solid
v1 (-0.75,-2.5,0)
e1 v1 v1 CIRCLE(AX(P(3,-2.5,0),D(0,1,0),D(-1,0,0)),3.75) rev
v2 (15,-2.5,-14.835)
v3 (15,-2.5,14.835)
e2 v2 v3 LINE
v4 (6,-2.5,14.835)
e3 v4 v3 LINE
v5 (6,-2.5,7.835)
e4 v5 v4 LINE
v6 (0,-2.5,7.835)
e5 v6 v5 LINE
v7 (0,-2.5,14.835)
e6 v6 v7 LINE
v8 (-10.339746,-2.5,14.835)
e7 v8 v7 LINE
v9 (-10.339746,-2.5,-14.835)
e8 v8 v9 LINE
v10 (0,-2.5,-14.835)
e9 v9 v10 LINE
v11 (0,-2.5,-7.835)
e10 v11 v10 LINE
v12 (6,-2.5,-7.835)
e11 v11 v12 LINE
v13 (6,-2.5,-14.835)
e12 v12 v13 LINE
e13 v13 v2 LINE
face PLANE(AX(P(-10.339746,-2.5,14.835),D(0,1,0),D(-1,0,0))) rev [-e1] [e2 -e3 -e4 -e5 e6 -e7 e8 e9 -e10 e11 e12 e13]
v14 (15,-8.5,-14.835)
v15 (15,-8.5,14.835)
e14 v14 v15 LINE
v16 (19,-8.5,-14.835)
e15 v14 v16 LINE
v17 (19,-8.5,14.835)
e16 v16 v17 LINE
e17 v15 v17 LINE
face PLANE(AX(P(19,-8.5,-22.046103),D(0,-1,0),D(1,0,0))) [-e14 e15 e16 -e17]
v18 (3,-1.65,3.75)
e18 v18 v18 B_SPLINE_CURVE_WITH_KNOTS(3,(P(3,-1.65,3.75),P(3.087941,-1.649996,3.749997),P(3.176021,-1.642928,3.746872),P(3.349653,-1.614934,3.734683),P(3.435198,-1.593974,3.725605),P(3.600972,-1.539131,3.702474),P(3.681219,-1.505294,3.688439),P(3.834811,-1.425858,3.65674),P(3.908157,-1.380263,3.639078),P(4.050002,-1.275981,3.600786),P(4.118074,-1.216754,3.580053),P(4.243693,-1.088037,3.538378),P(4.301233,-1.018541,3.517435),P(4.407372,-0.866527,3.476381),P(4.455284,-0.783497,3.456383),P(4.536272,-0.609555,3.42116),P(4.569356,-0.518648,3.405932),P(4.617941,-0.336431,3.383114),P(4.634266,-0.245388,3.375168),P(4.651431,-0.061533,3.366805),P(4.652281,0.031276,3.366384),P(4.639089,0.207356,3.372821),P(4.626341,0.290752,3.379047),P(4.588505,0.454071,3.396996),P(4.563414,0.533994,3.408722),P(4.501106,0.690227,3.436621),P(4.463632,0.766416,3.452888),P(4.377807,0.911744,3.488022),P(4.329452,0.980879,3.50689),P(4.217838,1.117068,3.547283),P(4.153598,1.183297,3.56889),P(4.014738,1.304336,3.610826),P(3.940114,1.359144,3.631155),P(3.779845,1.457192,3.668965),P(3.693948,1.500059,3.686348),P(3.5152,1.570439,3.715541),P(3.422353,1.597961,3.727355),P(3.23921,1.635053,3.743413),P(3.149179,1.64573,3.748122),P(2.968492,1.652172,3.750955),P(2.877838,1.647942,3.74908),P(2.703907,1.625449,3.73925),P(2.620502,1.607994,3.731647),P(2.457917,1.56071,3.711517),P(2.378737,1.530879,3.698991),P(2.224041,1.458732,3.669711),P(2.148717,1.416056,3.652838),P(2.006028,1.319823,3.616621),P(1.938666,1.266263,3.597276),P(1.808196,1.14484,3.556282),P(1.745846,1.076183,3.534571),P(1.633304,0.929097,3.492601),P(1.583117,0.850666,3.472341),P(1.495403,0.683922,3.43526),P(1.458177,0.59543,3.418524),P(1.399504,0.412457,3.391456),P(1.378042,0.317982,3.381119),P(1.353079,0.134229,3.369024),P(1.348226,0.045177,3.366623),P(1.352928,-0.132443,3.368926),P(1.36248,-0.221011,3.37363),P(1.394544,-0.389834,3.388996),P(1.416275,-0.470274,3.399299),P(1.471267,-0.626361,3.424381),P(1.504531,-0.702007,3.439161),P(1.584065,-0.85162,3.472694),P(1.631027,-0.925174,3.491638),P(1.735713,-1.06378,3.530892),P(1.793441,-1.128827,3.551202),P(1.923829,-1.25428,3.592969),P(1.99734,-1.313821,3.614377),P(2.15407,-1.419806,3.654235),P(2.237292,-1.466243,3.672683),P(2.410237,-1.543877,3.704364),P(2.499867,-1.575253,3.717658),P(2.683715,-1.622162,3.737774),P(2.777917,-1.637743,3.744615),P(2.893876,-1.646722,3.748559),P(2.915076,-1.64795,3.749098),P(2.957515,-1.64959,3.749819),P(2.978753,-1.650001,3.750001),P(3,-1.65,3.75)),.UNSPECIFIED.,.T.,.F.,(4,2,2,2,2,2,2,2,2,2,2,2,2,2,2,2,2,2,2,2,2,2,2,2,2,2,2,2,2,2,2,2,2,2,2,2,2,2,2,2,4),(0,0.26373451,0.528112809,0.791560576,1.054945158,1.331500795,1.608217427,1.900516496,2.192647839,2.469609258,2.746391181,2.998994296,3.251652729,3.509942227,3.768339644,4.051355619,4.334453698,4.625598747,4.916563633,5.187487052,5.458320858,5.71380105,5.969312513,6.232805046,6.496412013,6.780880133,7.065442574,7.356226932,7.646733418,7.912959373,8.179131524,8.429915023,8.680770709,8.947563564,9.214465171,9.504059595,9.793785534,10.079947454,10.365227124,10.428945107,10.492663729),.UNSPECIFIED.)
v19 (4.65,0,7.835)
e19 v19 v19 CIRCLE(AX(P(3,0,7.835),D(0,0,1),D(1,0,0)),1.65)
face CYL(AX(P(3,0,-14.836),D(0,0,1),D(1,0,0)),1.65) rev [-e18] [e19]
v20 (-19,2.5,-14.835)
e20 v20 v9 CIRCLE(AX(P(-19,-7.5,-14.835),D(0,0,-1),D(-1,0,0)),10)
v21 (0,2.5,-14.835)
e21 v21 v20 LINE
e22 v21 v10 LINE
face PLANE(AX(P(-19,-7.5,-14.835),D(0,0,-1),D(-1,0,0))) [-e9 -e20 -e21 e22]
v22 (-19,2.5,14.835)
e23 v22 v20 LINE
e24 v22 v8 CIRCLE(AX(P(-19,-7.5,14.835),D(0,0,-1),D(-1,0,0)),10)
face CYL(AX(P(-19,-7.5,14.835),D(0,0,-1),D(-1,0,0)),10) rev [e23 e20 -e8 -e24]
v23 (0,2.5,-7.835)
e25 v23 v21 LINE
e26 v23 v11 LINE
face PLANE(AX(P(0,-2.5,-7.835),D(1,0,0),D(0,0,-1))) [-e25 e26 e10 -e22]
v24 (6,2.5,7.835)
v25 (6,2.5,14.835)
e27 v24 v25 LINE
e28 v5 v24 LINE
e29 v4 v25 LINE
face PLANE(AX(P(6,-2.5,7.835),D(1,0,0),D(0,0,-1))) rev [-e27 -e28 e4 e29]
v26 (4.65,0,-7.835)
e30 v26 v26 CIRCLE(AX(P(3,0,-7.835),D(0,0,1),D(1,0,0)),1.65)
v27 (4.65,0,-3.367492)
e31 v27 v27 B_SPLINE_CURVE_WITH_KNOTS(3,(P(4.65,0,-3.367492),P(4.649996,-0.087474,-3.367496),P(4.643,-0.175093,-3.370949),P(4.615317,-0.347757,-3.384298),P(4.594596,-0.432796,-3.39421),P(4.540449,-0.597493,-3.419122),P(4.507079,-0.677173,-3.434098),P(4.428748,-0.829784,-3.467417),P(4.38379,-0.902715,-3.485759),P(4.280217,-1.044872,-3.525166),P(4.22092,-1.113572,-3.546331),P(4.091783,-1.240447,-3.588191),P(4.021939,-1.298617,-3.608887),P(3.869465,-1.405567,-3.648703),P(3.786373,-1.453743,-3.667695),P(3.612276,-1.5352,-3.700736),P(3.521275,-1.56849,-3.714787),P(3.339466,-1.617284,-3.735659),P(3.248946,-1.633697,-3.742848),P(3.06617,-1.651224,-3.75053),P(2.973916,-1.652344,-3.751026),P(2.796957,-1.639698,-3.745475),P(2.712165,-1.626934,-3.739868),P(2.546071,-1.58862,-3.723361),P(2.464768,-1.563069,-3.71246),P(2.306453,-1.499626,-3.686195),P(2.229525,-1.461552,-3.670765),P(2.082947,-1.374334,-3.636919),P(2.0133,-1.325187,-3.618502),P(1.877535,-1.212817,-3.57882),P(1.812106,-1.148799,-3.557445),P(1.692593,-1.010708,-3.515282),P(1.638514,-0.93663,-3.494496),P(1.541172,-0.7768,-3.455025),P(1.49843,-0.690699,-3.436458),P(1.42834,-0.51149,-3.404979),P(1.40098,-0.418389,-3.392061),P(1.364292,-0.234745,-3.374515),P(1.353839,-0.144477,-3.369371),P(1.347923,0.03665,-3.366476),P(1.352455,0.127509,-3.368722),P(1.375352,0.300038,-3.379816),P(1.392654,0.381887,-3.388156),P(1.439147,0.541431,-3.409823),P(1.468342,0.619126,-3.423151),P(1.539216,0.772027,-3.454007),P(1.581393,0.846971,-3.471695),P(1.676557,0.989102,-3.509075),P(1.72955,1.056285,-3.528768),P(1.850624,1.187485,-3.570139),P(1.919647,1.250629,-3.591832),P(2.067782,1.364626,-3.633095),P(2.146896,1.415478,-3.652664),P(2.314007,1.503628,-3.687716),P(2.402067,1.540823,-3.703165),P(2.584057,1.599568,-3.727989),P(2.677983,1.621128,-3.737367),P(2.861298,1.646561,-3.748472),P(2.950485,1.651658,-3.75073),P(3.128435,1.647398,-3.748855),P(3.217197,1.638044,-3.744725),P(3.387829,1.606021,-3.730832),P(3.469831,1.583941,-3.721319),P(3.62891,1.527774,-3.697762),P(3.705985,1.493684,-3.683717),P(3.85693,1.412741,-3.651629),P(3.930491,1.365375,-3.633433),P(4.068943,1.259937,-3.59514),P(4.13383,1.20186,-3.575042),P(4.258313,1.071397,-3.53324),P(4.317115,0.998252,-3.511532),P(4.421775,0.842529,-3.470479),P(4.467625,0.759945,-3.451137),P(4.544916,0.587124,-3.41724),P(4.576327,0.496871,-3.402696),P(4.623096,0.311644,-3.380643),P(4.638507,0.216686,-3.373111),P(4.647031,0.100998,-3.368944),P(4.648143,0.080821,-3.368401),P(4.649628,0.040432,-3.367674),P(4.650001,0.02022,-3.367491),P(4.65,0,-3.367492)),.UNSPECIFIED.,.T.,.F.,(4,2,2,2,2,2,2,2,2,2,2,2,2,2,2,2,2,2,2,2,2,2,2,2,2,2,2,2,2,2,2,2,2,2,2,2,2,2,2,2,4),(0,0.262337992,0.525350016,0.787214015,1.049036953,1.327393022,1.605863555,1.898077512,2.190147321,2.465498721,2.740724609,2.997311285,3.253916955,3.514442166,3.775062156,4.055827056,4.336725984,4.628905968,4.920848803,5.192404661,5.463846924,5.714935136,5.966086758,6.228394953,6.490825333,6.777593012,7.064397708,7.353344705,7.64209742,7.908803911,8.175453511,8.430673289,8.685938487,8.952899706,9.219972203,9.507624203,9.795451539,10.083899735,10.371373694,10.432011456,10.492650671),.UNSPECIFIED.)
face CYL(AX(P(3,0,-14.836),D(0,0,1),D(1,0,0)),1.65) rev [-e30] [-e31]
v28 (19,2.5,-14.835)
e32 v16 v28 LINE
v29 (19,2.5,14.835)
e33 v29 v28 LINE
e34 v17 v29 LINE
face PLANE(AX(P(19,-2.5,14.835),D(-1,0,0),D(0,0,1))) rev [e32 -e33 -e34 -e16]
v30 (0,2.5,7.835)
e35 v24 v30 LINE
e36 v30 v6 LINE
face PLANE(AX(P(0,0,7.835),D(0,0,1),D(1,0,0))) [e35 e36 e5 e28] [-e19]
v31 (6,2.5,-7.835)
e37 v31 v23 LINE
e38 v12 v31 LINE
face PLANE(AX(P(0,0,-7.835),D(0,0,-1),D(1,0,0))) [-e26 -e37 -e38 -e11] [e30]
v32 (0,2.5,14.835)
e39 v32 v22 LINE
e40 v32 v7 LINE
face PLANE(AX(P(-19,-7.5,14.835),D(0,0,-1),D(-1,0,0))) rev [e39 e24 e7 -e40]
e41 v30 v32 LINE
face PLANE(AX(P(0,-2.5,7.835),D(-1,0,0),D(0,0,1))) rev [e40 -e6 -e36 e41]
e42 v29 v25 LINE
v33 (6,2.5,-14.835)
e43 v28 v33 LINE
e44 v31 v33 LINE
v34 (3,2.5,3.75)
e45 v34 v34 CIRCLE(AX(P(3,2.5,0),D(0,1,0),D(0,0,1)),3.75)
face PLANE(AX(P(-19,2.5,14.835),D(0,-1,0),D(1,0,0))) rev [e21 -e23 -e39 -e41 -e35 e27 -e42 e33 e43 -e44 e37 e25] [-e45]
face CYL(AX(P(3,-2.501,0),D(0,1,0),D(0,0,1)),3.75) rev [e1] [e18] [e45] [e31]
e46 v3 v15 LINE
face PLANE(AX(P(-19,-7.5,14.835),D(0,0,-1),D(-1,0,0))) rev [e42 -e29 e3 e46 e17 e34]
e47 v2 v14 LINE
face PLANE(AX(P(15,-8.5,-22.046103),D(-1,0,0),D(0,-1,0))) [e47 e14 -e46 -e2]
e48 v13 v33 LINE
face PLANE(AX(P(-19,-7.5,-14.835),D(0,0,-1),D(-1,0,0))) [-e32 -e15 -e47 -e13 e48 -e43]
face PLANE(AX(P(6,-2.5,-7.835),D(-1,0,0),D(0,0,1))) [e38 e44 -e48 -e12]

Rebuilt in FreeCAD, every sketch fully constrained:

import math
import FreeCAD as App
import Part
import Sketcher


def add_polygon(sketch, points):
    """Adds a closed chain of lines whose ends are joined by coincident constraints."""
    first, n = sketch.GeometryCount, len(points)
    for a, b in zip(points, points[1:] + points[:1]):
        sketch.addGeometry(Part.LineSegment(App.Vector(*a, 0), App.Vector(*b, 0)), False)
    for i in range(n):
        sketch.addConstraint(Sketcher.Constraint("Coincident", first + i, 2, first + (i + 1) % n, 1))

doc = App.newDocument("Part")
body = doc.addObject("PartDesign::Body", "Body")

sketch1 = body.newObject("Sketcher::SketchObject", "Sketch")
sketch1.AttachmentSupport = (doc.getObject("XY_Plane"), [""])
sketch1.MapMode = "FlatFace"
sketch1.addGeometry(Part.LineSegment(App.Vector(-10.339746, -2.5, 0), App.Vector(19, -2.5, 0)), False)
sketch1.addGeometry(Part.LineSegment(App.Vector(19, -2.5, 0), App.Vector(19, 2.5, 0)), False)
sketch1.addGeometry(Part.LineSegment(App.Vector(19, 2.5, 0), App.Vector(-19, 2.5, 0)), False)
sketch1.addGeometry(Part.ArcOfCircle(Part.Circle(App.Vector(-19, -7.5, 0), App.Vector(0, 0, 1), 10), math.radians(30), math.radians(90)), False)
sketch1.addConstraint(Sketcher.Constraint("Coincident", 0, 2, 1, 1))
sketch1.addConstraint(Sketcher.Constraint("Coincident", 1, 2, 2, 1))
sketch1.addConstraint(Sketcher.Constraint("Tangent", 2, 2, 3, 2))
sketch1.addConstraint(Sketcher.Constraint("Coincident", 3, 1, 0, 1))
sketch1.addConstraint(Sketcher.Constraint("Horizontal", 0))
sketch1.addConstraint(Sketcher.Constraint("Vertical", 1))
sketch1.addConstraint(Sketcher.Constraint("Horizontal", 2))
sketch1.addConstraint(Sketcher.Constraint("Symmetric", 0, 2, 2, 2, -1, 1))
sketch1.addConstraint(Sketcher.Constraint("Radius", 3, 10.0))
sketch1.addConstraint(Sketcher.Constraint("DistanceX", 2, 2, 2, 1, 38.0))
sketch1.addConstraint(Sketcher.Constraint("DistanceY", 1, 1, 1, 2, 5.0))
pad1 = body.newObject("PartDesign::Pad", "Pad")
pad1.Profile = sketch1
pad1.Length = 29.67
pad1.Midplane = True

sketch2 = body.newObject("Sketcher::SketchObject", "Sketch001")
sketch2.AttachmentSupport = (doc.getObject("XY_Plane"), [""])
sketch2.MapMode = "FlatFace"
sketch2.AttachmentOffset = App.Placement(App.Vector(0, 0, 14.835), App.Rotation())
sketch2.addGeometry(Part.Circle(App.Vector(3, 0, 0), App.Vector(0, 0, 1), 1.65), False)
sketch2.addConstraint(Sketcher.Constraint("PointOnObject", 0, 3, -1))
sketch2.addConstraint(Sketcher.Constraint("Diameter", 0, 3.3))
sketch2.addConstraint(Sketcher.Constraint("DistanceX", -1, 1, 0, 3, 3.0))
pocket1 = body.newObject("PartDesign::Pocket", "Pocket")
pocket1.Profile = sketch2
pocket1.Type = "UpToFirst"

sketch3 = body.newObject("Sketcher::SketchObject", "Sketch002")
sketch3.AttachmentSupport = (doc.getObject("XY_Plane"), [""])
sketch3.MapMode = "FlatFace"
sketch3.AttachmentOffset = App.Placement(App.Vector(0, 0, 14.835), App.Rotation())
add_polygon(sketch3, [(0, 2.5), (0, -2.5), (6, -2.5), (6, 2.5)])
sketch3.addGeometry(Part.Circle(App.Vector(3, 0, 0), App.Vector(0, 0, 1), 1.65), False)
sketch3.addConstraint(Sketcher.Constraint("Vertical", 0))
sketch3.addConstraint(Sketcher.Constraint("Horizontal", 1))
sketch3.addConstraint(Sketcher.Constraint("Vertical", 2))
sketch3.addConstraint(Sketcher.Constraint("Horizontal", 3))
sketch3.addConstraint(Sketcher.Constraint("Symmetric", 0, 2, 3, 2, -1, 1))
sketch3.addConstraint(Sketcher.Constraint("PointOnObject", 4, 3, -1))
sketch3.addConstraint(Sketcher.Constraint("Diameter", 4, 3.3))
sketch3.addConstraint(Sketcher.Constraint("DistanceX", 1, 1, 1, 2, 6.0))
sketch3.addConstraint(Sketcher.Constraint("DistanceY", 0, 2, 0, 1, 5.0))
sketch3.addConstraint(Sketcher.Constraint("DistanceX", -1, 1, 4, 3, 3.0))
pocket2 = body.newObject("PartDesign::Pocket", "Pocket001")
pocket2.Profile = sketch3
pocket2.Length = 7
doc.recompute()

mirrored = body.newObject("PartDesign::Mirrored", "Mirrored")
mirrored.Originals = [pocket2]
mirrored.MirrorPlane = (doc.getObject("XY_Plane"), [""])
body.Tip = mirrored

sketch4 = body.newObject("Sketcher::SketchObject", "Sketch003")
sketch4.AttachmentSupport = (doc.getObject("XZ_Plane"), [""])
sketch4.MapMode = "FlatFace"
sketch4.AttachmentOffset = App.Placement(App.Vector(0, 0, -2.5), App.Rotation())
sketch4.addGeometry(Part.Circle(App.Vector(3, 0, 0), App.Vector(0, 0, 1), 3.75), False)
sketch4.addConstraint(Sketcher.Constraint("PointOnObject", 0, 3, -1))
sketch4.addConstraint(Sketcher.Constraint("Diameter", 0, 7.5))
sketch4.addConstraint(Sketcher.Constraint("DistanceX", -1, 1, 0, 3, 3.0))
pocket3 = body.newObject("PartDesign::Pocket", "Pocket002")
pocket3.Profile = sketch4
pocket3.Length = 5
pocket3.Reversed = True

sketch5 = body.newObject("Sketcher::SketchObject", "Sketch004")
sketch5.AttachmentSupport = (doc.getObject("XY_Plane"), [""])
sketch5.MapMode = "FlatFace"
sketch5.AttachmentOffset = App.Placement(App.Vector(0, 0, 14.835), App.Rotation())
add_polygon(sketch5, [(15, -2.5), (15, -8.5), (19, -8.5), (19, -2.5)])
sketch5.addConstraint(Sketcher.Constraint("Vertical", 0))
sketch5.addConstraint(Sketcher.Constraint("Horizontal", 1))
sketch5.addConstraint(Sketcher.Constraint("Vertical", 2))
sketch5.addConstraint(Sketcher.Constraint("Horizontal", 3))
sketch5.addConstraint(Sketcher.Constraint("DistanceX", 1, 1, 1, 2, 4.0))
sketch5.addConstraint(Sketcher.Constraint("DistanceY", 0, 2, 0, 1, 6.0))
sketch5.addConstraint(Sketcher.Constraint("DistanceX", -1, 1, 0, 2, 15.0))
sketch5.addConstraint(Sketcher.Constraint("DistanceY", 0, 2, -1, 1, 8.5))
pad2 = body.newObject("PartDesign::Pad", "Pad001")
pad2.Profile = sketch5
pad2.Length = 29.67
pad2.Reversed = True

doc.recompute()
